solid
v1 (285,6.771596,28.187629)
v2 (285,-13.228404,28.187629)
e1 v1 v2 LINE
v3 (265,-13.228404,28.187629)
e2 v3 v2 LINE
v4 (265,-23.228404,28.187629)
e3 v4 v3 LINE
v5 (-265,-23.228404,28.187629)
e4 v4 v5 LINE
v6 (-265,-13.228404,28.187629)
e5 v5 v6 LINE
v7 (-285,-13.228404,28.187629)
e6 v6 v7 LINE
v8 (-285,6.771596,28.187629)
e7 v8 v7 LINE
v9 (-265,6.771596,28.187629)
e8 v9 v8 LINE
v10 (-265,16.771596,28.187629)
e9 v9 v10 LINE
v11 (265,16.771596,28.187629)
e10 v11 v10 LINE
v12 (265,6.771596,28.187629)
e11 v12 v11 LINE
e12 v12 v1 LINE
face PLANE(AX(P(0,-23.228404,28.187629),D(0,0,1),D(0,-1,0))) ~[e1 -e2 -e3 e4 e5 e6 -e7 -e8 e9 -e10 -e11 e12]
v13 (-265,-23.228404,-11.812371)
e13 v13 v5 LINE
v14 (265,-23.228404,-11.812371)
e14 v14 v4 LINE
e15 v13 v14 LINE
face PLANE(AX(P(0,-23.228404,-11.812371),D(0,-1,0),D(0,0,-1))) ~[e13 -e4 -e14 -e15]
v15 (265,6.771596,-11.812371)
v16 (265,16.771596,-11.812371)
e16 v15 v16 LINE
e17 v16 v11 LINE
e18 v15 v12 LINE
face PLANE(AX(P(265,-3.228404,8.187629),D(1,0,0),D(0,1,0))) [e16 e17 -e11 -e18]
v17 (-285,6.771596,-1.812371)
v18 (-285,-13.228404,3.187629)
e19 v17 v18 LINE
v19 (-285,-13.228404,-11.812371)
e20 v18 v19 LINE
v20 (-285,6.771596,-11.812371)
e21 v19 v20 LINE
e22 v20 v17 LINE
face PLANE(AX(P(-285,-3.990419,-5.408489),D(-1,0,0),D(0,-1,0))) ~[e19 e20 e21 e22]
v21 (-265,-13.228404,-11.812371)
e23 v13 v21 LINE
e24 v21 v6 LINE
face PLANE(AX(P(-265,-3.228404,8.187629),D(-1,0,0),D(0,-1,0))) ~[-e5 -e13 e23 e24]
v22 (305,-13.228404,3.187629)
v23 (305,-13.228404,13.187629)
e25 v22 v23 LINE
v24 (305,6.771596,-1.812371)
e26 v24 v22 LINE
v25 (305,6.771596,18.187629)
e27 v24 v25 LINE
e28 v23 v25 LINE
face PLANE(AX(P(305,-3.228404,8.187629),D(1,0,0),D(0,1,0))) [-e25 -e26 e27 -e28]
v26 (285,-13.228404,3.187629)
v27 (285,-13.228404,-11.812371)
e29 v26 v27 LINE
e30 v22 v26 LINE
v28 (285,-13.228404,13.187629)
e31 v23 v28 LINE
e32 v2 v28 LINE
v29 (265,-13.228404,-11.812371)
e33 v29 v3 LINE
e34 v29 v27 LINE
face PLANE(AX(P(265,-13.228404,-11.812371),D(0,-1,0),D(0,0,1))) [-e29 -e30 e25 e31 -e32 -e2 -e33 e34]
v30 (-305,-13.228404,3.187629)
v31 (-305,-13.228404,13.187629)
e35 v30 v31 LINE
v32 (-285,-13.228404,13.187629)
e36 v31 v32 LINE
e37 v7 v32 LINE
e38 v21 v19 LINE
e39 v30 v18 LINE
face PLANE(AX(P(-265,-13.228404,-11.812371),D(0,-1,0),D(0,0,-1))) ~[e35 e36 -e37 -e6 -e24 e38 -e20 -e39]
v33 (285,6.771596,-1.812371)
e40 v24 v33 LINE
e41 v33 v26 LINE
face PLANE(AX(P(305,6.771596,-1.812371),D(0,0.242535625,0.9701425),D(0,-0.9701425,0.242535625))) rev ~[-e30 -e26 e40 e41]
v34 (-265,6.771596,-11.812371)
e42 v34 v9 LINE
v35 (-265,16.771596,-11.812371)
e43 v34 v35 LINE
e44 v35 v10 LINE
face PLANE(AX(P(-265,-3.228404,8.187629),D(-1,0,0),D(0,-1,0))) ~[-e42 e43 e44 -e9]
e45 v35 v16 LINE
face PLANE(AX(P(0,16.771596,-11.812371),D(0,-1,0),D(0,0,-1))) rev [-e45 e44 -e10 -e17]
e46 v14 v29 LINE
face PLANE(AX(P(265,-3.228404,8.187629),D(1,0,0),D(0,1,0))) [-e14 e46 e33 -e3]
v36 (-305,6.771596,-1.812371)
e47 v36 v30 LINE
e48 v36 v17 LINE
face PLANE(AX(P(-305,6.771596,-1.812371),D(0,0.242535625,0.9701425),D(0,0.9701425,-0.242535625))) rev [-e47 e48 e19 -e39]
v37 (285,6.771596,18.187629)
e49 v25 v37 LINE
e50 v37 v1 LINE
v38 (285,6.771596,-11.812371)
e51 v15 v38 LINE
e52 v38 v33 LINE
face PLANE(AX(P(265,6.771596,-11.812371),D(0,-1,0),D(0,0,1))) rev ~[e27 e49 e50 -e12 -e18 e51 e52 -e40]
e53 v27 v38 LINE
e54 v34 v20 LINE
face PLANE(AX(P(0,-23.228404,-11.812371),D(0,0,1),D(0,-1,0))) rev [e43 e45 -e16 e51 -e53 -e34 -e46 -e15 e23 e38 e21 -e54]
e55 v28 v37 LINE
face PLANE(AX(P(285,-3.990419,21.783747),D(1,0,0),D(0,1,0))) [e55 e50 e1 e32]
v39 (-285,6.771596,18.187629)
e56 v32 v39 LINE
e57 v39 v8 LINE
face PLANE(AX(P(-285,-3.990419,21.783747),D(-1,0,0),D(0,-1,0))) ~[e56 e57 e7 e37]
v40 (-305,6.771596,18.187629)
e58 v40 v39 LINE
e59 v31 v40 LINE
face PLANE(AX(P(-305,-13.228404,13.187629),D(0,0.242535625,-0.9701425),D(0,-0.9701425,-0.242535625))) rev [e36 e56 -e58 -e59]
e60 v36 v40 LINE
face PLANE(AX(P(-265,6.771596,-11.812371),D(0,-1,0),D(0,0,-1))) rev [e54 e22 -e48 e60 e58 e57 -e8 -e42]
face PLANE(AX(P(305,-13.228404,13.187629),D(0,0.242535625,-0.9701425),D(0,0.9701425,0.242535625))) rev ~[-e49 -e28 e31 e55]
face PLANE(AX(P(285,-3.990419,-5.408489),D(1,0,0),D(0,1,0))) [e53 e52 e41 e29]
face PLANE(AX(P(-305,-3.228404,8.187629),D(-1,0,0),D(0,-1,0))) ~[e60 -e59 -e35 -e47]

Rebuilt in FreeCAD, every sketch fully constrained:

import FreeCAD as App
import Part
import Sketcher

V = App.Vector
Q = App.Units.Quantity


def add_polygon(sketch, points):
    """Adds a closed chain of lines whose ends are joined by coincident constraints."""
    first, n = sketch.GeometryCount, len(points)
    for a, b in zip(points, points[1:] + points[:1]):
        sketch.addGeometry(Part.LineSegment(App.Vector(*a, 0), App.Vector(*b, 0)), False)
    for i in range(n):
        sketch.addConstraint(Sketcher.Constraint("Coincident", first + i, 2, first + (i + 1) % n, 1))

doc = App.newDocument("Part")
body = doc.addObject("PartDesign::Body", "Body")

# Sketch on YZ plane
sketch1 = body.newObject("Sketcher::SketchObject", "Sketch")
sketch1.AttachmentSupport = (doc.getObject("YZ_Plane"), [""])
sketch1.MapMode = "FlatFace"
add_polygon(sketch1, [(-23, 28), (-23, -12), (17, -12), (17, 28)])  # lines 0-3
sketch1.addConstraint([
    Sketcher.Constraint("Vertical", 0),
    Sketcher.Constraint("Horizontal", 1),
    Sketcher.Constraint("Vertical", 2),
    Sketcher.Constraint("Horizontal", 3),
    Sketcher.Constraint("Equal", 3, 0),
    Sketcher.Constraint("DistanceX", 1, 1, 1, 2, Q("40 mm")),
    Sketcher.Constraint("DistanceY", 0, 2, -1, 1, Q("11.812371 mm")),
    Sketcher.Constraint("DistanceX", 0, 2, -1, 1, Q("23.228404 mm")),
])
pad1 = body.newObject("PartDesign::Pad", "Pad")
pad1.Profile = sketch1
pad1.Length = 265

# Sketch on YZ plane
sketch2 = body.newObject("Sketcher::SketchObject", "Sketch001")
sketch2.AttachmentSupport = (doc.getObject("YZ_Plane"), [""])
sketch2.MapMode = "FlatFace"
sketch2.AttachmentOffset = App.Placement(V(0, 0, 265), App.Rotation())
add_polygon(sketch2, [(-13, 28), (-13, -12), (7, -12), (7, 28)])  # lines 0-3
sketch2.addConstraint([
    Sketcher.Constraint("Vertical", 0),
    Sketcher.Constraint("Horizontal", 1),
    Sketcher.Constraint("Vertical", 2),
    Sketcher.Constraint("Horizontal", 3),
    Sketcher.Constraint("DistanceX", 1, 1, 1, 2, Q("20 mm")),
    Sketcher.Constraint("DistanceY", 0, 2, 0, 1, Q("40 mm")),
    Sketcher.Constraint("DistanceY", 0, 2, -1, 1, Q("11.812371 mm")),
    Sketcher.Constraint("DistanceX", 0, 2, -1, 1, Q("13.228404 mm")),
])
pad2 = body.newObject("PartDesign::Pad", "Pad001")
pad2.Profile = sketch2
pad2.Length = 40

# Sketch on YZ plane
sketch3 = body.newObject("Sketcher::SketchObject", "Sketch002")
sketch3.AttachmentSupport = (doc.getObject("YZ_Plane"), [""])
sketch3.MapMode = "FlatFace"
sketch3.AttachmentOffset = App.Placement(V(0, 0, 305), App.Rotation())
add_polygon(sketch3, [(7, -2), (-13, 3), (-13, -12), (7, -12)])  # lines 0-3
add_polygon(sketch3, [(-13, 28), (-13, 13), (7, 18), (7, 28)])  # lines 4-7
sketch3.addConstraint([
    Sketcher.Constraint("Vertical", 1),
    Sketcher.Constraint("Horizontal", 2),
    Sketcher.Constraint("Vertical", 3),
    Sketcher.Constraint("Vertical", 4),
    Sketcher.Constraint("Vertical", 6),
    Sketcher.Constraint("Horizontal", 7),
    Sketcher.Constraint("Vertical", 1, 2, 4, 2),
    Sketcher.Constraint("Vertical", 3, 2, 5, 2),
    Sketcher.Constraint("Equal", 1, 4),
    Sketcher.Constraint("Equal", 3, 6),
    Sketcher.Constraint("DistanceX", 2, 1, 2, 2, Q("20 mm")),
    Sketcher.Constraint("DistanceY", 1, 2, 1, 1, Q("15 mm")),
    Sketcher.Constraint("DistanceY", 3, 1, 3, 2, Q("10 mm")),
    Sketcher.Constraint("DistanceY", 0, 2, 4, 2, Q("10 mm")),
    Sketcher.Constraint("DistanceY", -1, 1, 0, 2, Q("3.187629 mm")),
    Sketcher.Constraint("DistanceX", 0, 2, -1, 1, Q("13.228404 mm")),
])
pocket1 = body.newObject("PartDesign::Pocket", "Pocket")
pocket1.Profile = sketch3
pocket1.Length = 20
body2 = doc.addObject("PartDesign::Body", "Body001")
doc.recompute()

body2.BaseFeature = body
doc.recompute()

mirroring = doc.addObject("Part::Mirroring", "Mirroring")
mirroring.Source = body
mirroring.Base = V(0, -3.228404, 8.187629)
mirroring.Normal = V(-1, 0, 0)
body3 = doc.addObject("PartDesign::Body", "Body002")
body3.BaseFeature = mirroring
boolean = body2.newObject("PartDesign::Boolean", "Boolean")
boolean.Type = "Fuse"
boolean.addObjects([body3])
doc.recompute()
mirroring.Visibility = False

doc.recompute()
